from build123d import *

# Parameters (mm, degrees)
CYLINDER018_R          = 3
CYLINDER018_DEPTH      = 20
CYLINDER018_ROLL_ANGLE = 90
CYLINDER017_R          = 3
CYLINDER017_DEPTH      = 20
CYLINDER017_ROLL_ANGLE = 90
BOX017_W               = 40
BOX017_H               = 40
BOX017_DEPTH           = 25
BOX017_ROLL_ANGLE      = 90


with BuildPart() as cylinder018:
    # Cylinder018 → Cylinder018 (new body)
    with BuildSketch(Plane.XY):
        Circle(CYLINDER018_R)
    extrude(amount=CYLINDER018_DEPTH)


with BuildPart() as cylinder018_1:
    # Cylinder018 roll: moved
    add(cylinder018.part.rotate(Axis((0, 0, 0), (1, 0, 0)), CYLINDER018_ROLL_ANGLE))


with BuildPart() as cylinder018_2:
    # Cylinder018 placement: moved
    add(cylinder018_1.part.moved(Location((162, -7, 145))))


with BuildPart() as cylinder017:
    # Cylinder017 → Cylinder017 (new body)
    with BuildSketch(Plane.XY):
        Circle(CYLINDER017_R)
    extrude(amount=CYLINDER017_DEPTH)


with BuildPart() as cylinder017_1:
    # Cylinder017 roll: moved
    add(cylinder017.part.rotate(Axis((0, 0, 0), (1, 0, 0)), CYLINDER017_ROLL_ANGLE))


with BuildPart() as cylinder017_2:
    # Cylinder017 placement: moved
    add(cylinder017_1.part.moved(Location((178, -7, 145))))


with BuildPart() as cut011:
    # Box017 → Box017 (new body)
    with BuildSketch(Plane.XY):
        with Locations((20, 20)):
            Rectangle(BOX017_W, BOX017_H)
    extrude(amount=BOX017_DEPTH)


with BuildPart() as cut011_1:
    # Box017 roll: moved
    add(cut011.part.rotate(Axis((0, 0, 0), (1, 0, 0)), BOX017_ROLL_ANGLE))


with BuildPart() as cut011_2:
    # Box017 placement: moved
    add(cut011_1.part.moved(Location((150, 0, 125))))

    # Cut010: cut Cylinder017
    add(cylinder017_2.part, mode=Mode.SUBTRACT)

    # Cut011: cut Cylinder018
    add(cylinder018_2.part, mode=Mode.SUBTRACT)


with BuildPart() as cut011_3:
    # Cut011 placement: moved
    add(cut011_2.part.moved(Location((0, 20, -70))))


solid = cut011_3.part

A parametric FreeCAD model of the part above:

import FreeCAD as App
import Part
import Sketcher
Q = App.Units.Quantity

doc = App.newDocument("Part")
body = doc.addObject("PartDesign::Body", "Body")

# Sketch on XY plane
sketch1 = doc.addObject("Sketcher::SketchObject", "Sketch")
body.addObject(sketch1)
sketch1.AttachmentSupport = (doc.XY_Plane, [""])
sketch1.MapMode = "FlatFace"
sketch1.addGeometry(Part.Circle(App.Vector(0, 0, 0), App.Vector(0, 0, 1), 3), False)
sketch1.addConstraint(Sketcher.Constraint("Coincident", 0, 3, -1, 1))
sketch1.addConstraint(Sketcher.Constraint("Diameter", 0, Q("6 mm")))
pad1 = doc.addObject("PartDesign::Pad", "Pad")
body.addObject(pad1)
pad1.Profile = sketch1
pad1.Length = 20
body2 = doc.addObject("PartDesign::Body", "Body001")
doc.recompute()

body.Placement = App.Placement(App.Vector(0, 0, 0), App.Rotation(App.Vector(1, 0, 0), 90))
boolean = doc.addObject("PartDesign::Boolean", "Boolean")
body2.addObject(boolean)
boolean.Type = "Fuse"
boolean.addObjects([body])
body3 = doc.addObject("PartDesign::Body", "Body002")
doc.recompute()

body2.Placement = App.Placement(App.Vector(162, -7, 145), App.Rotation(App.Vector(0, 0, 1), 0))
boolean2 = doc.addObject("PartDesign::Boolean", "Boolean001")
body3.addObject(boolean2)
boolean2.Type = "Fuse"
boolean2.addObjects([body2])
body4 = doc.addObject("PartDesign::Body", "Body003")

# Sketch on XY plane
sketch2 = doc.addObject("Sketcher::SketchObject", "Sketch001")
body4.addObject(sketch2)
sketch2.AttachmentSupport = (doc.getObject("XY_Plane003"), [""])
sketch2.MapMode = "FlatFace"
sketch2.addGeometry(Part.Circle(App.Vector(0, 0, 0), App.Vector(0, 0, 1), 3), False)
sketch2.addConstraint(Sketcher.Constraint("Coincident", 0, 3, -1, 1))
sketch2.addConstraint(Sketcher.Constraint("Diameter", 0, Q("6 mm")))
pad2 = doc.addObject("PartDesign::Pad", "Pad001")
body4.addObject(pad2)
pad2.Profile = sketch2
pad2.Length = 20
body5 = doc.addObject("PartDesign::Body", "Body004")
doc.recompute()

body4.Placement = App.Placement(App.Vector(0, 0, 0), App.Rotation(App.Vector(1, 0, 0), 90))
boolean3 = doc.addObject("PartDesign::Boolean", "Boolean002")
body5.addObject(boolean3)
boolean3.Type = "Fuse"
boolean3.addObjects([body4])
body6 = doc.addObject("PartDesign::Body", "Body005")
doc.recompute()

body5.Placement = App.Placement(App.Vector(178, -7, 145), App.Rotation(App.Vector(0, 0, 1), 0))
boolean4 = doc.addObject("PartDesign::Boolean", "Boolean003")
body6.addObject(boolean4)
boolean4.Type = "Fuse"
boolean4.addObjects([body5])
body7 = doc.addObject("PartDesign::Body", "Body006")

# Sketch on XY plane
sketch3 = doc.addObject("Sketcher::SketchObject", "Sketch002")
body7.addObject(sketch3)
sketch3.AttachmentSupport = (doc.getObject("XY_Plane006"), [""])
sketch3.MapMode = "FlatFace"
sketch3.addGeometry(Part.LineSegment(App.Vector(0, 40, 0), App.Vector(0, 0, 0)), False)
sketch3.addGeometry(Part.LineSegment(App.Vector(0, 0, 0), App.Vector(40, 0, 0)), False)
sketch3.addGeometry(Part.LineSegment(App.Vector(40, 0, 0), App.Vector(40, 40, 0)), False)
sketch3.addGeometry(Part.LineSegment(App.Vector(40, 40, 0), App.Vector(0, 40, 0)), False)
sketch3.addConstraint(Sketcher.Constraint("Coincident", 0, 2, 1, 1))
sketch3.addConstraint(Sketcher.Constraint("Coincident", 1, 2, 2, 1))
sketch3.addConstraint(Sketcher.Constraint("Coincident", 2, 2, 3, 1))
sketch3.addConstraint(Sketcher.Constraint("Coincident", 3, 2, 0, 1))
sketch3.addConstraint(Sketcher.Constraint("Vertical", 0))
sketch3.addConstraint(Sketcher.Constraint("Horizontal", 1))
sketch3.addConstraint(Sketcher.Constraint("Vertical", 2))
sketch3.addConstraint(Sketcher.Constraint("Horizontal", 3))
sketch3.addConstraint(Sketcher.Constraint("Coincident", 0, 2, -1, 1))
sketch3.addConstraint(Sketcher.Constraint("Equal", 3, 0))
sketch3.addConstraint(Sketcher.Constraint("DistanceX", 1, 1, 1, 2, Q("40 mm")))
pad3 = doc.addObject("PartDesign::Pad", "Pad002")
body7.addObject(pad3)
pad3.Profile = sketch3
pad3.Length = 25
body8 = doc.addObject("PartDesign::Body", "Body007")
doc.recompute()

body7.Placement = App.Placement(App.Vector(0, 0, 0), App.Rotation(App.Vector(1, 0, 0), 90))
boolean5 = doc.addObject("PartDesign::Boolean", "Boolean004")
body8.addObject(boolean5)
boolean5.Type = "Fuse"
boolean5.addObjects([body7])
body9 = doc.addObject("PartDesign::Body", "Body008")
doc.recompute()

body8.Placement = App.Placement(App.Vector(150, 0, 125), App.Rotation(App.Vector(0, 0, 1), 0))
boolean6 = doc.addObject("PartDesign::Boolean", "Boolean005")
body9.addObject(boolean6)
boolean6.Type = "Fuse"
boolean6.addObjects([body8])
doc.recompute()

boolean7 = doc.addObject("PartDesign::Boolean", "Boolean006")
body9.addObject(boolean7)
boolean7.Type = "Cut"
boolean7.addObjects([body6])
doc.recompute()

boolean8 = doc.addObject("PartDesign::Boolean", "Boolean007")
body9.addObject(boolean8)
boolean8.Type = "Cut"
boolean8.addObjects([body3])
body10 = doc.addObject("PartDesign::Body", "Body009")
doc.recompute()

body9.Placement = App.Placement(App.Vector(0, 20, -70), App.Rotation(App.Vector(0, 0, 1), 0))
boolean9 = doc.addObject("PartDesign::Boolean", "Boolean008")
body10.addObject(boolean9)
boolean9.Type = "Fuse"
boolean9.addObjects([body9])

doc.recompute()
